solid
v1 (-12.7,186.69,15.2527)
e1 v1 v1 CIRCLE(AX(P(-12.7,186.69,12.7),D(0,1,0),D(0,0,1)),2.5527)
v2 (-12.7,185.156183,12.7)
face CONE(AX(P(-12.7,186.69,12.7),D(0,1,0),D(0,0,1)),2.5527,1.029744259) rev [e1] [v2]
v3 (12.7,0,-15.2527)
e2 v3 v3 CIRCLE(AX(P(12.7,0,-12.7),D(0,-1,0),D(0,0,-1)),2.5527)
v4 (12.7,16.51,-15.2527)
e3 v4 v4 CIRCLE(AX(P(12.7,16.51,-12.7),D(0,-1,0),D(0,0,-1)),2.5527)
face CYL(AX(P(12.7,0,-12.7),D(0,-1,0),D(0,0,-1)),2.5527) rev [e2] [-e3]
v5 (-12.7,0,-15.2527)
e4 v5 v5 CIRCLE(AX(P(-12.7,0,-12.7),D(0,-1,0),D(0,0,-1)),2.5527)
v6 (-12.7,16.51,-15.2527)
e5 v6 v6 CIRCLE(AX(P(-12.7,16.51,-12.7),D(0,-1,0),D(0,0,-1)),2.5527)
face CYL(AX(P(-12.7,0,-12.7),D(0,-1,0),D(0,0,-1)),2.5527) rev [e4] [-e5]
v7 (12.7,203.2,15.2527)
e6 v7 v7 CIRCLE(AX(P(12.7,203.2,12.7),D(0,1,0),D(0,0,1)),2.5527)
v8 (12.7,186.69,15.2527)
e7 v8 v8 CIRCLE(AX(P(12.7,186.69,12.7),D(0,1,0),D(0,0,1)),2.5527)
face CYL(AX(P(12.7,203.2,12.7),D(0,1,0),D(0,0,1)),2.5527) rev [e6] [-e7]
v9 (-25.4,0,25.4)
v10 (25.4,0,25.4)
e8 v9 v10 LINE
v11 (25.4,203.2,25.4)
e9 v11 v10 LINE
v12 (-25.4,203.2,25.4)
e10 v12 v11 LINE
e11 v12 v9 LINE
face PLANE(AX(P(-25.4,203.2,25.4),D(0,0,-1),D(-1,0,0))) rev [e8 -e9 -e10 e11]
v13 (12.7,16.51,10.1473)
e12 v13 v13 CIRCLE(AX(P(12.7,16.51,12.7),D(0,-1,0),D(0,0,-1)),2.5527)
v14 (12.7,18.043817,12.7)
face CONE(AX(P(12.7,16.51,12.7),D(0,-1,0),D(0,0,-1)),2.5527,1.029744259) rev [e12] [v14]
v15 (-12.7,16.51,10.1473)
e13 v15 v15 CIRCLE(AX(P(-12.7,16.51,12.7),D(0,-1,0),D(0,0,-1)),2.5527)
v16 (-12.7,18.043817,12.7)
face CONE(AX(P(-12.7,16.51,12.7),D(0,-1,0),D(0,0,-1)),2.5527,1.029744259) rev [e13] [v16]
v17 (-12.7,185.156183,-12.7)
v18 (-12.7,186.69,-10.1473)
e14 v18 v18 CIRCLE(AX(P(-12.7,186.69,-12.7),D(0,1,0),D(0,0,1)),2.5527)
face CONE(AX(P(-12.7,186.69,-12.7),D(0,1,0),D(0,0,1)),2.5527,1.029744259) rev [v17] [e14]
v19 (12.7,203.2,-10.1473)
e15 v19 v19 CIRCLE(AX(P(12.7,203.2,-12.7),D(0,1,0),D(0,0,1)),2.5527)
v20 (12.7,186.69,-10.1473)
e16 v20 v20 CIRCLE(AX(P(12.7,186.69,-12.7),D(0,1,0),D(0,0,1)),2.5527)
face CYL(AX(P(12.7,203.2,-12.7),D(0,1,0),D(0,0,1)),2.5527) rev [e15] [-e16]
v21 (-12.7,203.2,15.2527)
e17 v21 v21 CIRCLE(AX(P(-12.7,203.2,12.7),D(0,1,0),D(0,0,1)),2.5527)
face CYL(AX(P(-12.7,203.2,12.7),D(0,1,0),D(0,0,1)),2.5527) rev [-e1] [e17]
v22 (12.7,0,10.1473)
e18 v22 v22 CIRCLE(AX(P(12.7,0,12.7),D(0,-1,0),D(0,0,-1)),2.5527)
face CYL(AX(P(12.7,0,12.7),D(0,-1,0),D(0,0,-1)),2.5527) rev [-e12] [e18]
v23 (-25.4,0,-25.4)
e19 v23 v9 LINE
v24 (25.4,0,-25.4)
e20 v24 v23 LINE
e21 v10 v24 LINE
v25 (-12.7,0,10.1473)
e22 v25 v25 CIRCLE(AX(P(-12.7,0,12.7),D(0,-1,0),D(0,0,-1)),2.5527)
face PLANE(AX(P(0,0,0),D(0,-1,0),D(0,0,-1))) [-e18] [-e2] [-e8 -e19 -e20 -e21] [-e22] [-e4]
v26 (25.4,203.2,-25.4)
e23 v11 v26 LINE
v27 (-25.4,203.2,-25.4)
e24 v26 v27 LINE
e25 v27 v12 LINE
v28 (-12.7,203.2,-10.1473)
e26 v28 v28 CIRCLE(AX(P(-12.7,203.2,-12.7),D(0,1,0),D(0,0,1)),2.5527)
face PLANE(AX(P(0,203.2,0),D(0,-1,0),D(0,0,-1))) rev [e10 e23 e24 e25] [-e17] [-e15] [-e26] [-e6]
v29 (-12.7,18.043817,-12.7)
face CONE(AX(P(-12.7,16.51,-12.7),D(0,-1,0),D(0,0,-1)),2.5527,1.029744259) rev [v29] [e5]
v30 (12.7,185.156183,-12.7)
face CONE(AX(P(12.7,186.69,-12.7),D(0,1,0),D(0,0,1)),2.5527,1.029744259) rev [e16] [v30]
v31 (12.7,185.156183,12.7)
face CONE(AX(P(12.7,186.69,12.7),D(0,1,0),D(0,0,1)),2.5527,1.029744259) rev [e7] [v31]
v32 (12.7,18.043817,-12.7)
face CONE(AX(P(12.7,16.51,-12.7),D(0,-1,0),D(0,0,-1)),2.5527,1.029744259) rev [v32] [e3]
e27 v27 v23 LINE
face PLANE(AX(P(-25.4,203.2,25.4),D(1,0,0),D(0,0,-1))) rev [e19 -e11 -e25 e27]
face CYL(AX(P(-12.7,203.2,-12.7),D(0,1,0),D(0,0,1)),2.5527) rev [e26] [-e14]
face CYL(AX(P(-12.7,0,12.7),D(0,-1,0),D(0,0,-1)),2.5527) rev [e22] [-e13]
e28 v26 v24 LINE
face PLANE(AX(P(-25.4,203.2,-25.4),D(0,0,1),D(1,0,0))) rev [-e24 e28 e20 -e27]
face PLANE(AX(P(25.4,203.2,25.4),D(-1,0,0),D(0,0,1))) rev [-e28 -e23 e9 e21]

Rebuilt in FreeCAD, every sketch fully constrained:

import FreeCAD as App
import Part
import Sketcher

V = App.Vector
Q = App.Units.Quantity


def add_polygon(sketch, points):
    """Adds a closed chain of lines whose ends are joined by coincident constraints."""
    first, n = sketch.GeometryCount, len(points)
    for a, b in zip(points, points[1:] + points[:1]):
        sketch.addGeometry(Part.LineSegment(App.Vector(*a, 0), App.Vector(*b, 0)), False)
    for i in range(n):
        sketch.addConstraint(Sketcher.Constraint("Coincident", first + i, 2, first + (i + 1) % n, 1))

doc = App.newDocument("Part")
body = doc.addObject("PartDesign::Body", "Body")

# Sketch on XZ plane
sketch1 = body.newObject("Sketcher::SketchObject", "Sketch")
sketch1.AttachmentSupport = (doc.getObject("XZ_Plane"), [""])
sketch1.MapMode = "FlatFace"
add_polygon(sketch1, [(-25, -25), (-25, 25), (25, 25), (25, -25)])  # lines 0-3
sketch1.addConstraint([
    Sketcher.Constraint("Vertical", 0),
    Sketcher.Constraint("Horizontal", 1),
    Sketcher.Constraint("Vertical", 2),
    Sketcher.Constraint("Horizontal", 3),
    Sketcher.Constraint("Symmetric", 0, 2, 2, 2, -1, 1),
    Sketcher.Constraint("Equal", 3, 0),
    Sketcher.Constraint("DistanceX", 1, 1, 1, 2, Q("2 in")),
])
pad1 = body.newObject("PartDesign::Pad", "Pad")
pad1.Profile = sketch1
pad1.Length = Q("8 in")
pad1.Reversed = True

# Sketch on XZ plane
sketch2 = body.newObject("Sketcher::SketchObject", "Sketch001")
sketch2.AttachmentSupport = (doc.getObject("XZ_Plane"), [""])
sketch2.MapMode = "FlatFace"
sketch2.AttachmentOffset = App.Placement(V(0, 0, -8 * 25.4), App.Rotation())
sketch2.addGeometry([
    Part.Circle(V(-12.7, -12.7, 0), V(0, 0, 1), 2.6),
    Part.Circle(V(12.7, -12.7, 0), V(0, 0, 1), 2.6),
    Part.Circle(V(12.7, 12.7, 0), V(0, 0, 1), 2.6),
    Part.Circle(V(-12.7, 12.7, 0), V(0, 0, 1), 2.6),
], False)
sketch2.addConstraint([
    Sketcher.Constraint("Equal", 0, 1),
    Sketcher.Constraint("Equal", 1, 2),
    Sketcher.Constraint("Equal", 2, 3),
    Sketcher.Constraint("Symmetric", 0, 3, 2, 3, -1, 1),
    Sketcher.Constraint("Symmetric", 1, 3, 3, 3, -1, 1),
    Sketcher.Constraint("Symmetric", 0, 3, 1, 3, -2),
    Sketcher.Constraint("Diameter", 0, Q("0.201 in")),
    Sketcher.Constraint("DistanceX", 0, 3, 1, 3, Q("1 in")),
    Sketcher.Constraint("DistanceY", 1, 3, 2, 3, Q("1 in")),
])
doc.recompute()
hole = body.newObject("PartDesign::Hole", "Hole")
hole.Profile = sketch2
hole.ThreadType = "None"
hole.Diameter = Q("0.201 in")
hole.DepthType = "Dimension"
hole.Depth = Q("0.65 in")
hole.DrillPoint = "Angled"
hole.DrillPointAngle = 118
hole.Reversed = True

# Sketch on XZ plane
sketch3 = body.newObject("Sketcher::SketchObject", "Sketch002")
sketch3.AttachmentSupport = (doc.getObject("XZ_Plane"), [""])
sketch3.MapMode = "FlatFace"
sketch3.addGeometry([
    Part.Circle(V(12.7, -12.7, 0), V(0, 0, 1), 2.6),
    Part.Circle(V(-12.7, -12.7, 0), V(0, 0, 1), 2.6),
    Part.Circle(V(-12.7, 12.7, 0), V(0, 0, 1), 2.6),
    Part.Circle(V(12.7, 12.7, 0), V(0, 0, 1), 2.6),
], False)
sketch3.addConstraint([
    Sketcher.Constraint("Equal", 0, 1),
    Sketcher.Constraint("Equal", 1, 2),
    Sketcher.Constraint("Equal", 2, 3),
    Sketcher.Constraint("Symmetric", 0, 3, 2, 3, -1, 1),
    Sketcher.Constraint("Symmetric", 1, 3, 3, 3, -1, 1),
    Sketcher.Constraint("Symmetric", 0, 3, 1, 3, -2),
    Sketcher.Constraint("Diameter", 0, Q("0.201 in")),
    Sketcher.Constraint("DistanceX", 1, 3, 0, 3, Q("1 in")),
    Sketcher.Constraint("DistanceY", 1, 3, 2, 3, Q("1 in")),
])
doc.recompute()
hole2 = body.newObject("PartDesign::Hole", "Hole001")
hole2.Profile = sketch3
hole2.ThreadType = "None"
hole2.Diameter = Q("0.201 in")
hole2.DepthType = "Dimension"
hole2.Depth = Q("0.65 in")
hole2.DrillPoint = "Angled"
hole2.DrillPointAngle = 118

doc.recompute()
